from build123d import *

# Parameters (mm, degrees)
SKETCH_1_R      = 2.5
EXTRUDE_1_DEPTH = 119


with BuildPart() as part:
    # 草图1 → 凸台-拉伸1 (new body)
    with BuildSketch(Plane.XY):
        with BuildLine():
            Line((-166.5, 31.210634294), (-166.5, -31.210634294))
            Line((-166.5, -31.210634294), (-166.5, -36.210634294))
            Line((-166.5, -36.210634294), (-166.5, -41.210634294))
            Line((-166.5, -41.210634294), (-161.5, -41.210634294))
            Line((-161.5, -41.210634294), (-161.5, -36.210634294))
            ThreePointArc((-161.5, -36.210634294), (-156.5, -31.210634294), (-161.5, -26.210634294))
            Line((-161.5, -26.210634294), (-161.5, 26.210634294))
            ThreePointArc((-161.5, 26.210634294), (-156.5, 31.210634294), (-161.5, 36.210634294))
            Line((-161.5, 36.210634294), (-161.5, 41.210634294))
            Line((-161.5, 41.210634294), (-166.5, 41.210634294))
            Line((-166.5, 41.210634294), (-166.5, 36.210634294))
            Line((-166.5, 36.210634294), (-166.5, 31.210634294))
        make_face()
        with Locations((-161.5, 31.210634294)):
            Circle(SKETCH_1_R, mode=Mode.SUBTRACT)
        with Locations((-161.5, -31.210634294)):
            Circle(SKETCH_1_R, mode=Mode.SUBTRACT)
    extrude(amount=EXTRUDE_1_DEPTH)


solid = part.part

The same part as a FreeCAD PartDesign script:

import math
import FreeCAD as App
import Part
import Sketcher

doc = App.newDocument("Part")
body = doc.addObject("PartDesign::Body", "Body")

# Sketch on XY plane
sketch1 = doc.addObject("Sketcher::SketchObject", "Sketch")
body.addObject(sketch1)
sketch1.AttachmentSupport = (doc.XY_Plane, [""])
sketch1.MapMode = "FlatFace"
sketch1.addGeometry([
    Part.LineSegment(App.Vector(-166.5, -41.2, 0), App.Vector(-161.5, -41.2, 0)),  # 0
    Part.LineSegment(App.Vector(-161.5, -41.2, 0), App.Vector(-161.5, -36.2, 0)),  # 1
    Part.ArcOfCircle(Part.Circle(App.Vector(-161.5, -31.2, 0), App.Vector(0, 0, 1), 5), math.radians(-90), math.radians(90)),  # 2
    Part.LineSegment(App.Vector(-161.5, -26.2, 0), App.Vector(-161.5, 26.2, 0)),  # 3
    Part.ArcOfCircle(Part.Circle(App.Vector(-161.5, 31.2, 0), App.Vector(0, 0, 1), 5), math.radians(-90), math.radians(90)),  # 4
    Part.LineSegment(App.Vector(-161.5, 36.2, 0), App.Vector(-161.5, 41.2, 0)),  # 5
    Part.LineSegment(App.Vector(-161.5, 41.2, 0), App.Vector(-166.5, 41.2, 0)),  # 6
    Part.LineSegment(App.Vector(-166.5, 41.2, 0), App.Vector(-166.5, -41.2, 0)),  # 7
    Part.Circle(App.Vector(-161.5, -31.2, 0), App.Vector(0, 0, 1), 2.5),  # 8
    Part.Circle(App.Vector(-161.5, 31.2, 0), App.Vector(0, 0, 1), 2.5),  # 9
], False)
sketch1.addConstraint([
    Sketcher.Constraint("Coincident", 0, 2, 1, 1),
    Sketcher.Constraint("Coincident", 1, 2, 2, 1),
    Sketcher.Constraint("Coincident", 2, 2, 3, 1),
    Sketcher.Constraint("Coincident", 3, 2, 4, 1),
    Sketcher.Constraint("Coincident", 4, 2, 5, 1),
    Sketcher.Constraint("Coincident", 5, 2, 6, 1),
    Sketcher.Constraint("Coincident", 6, 2, 7, 1),
    Sketcher.Constraint("Coincident", 7, 2, 0, 1),
    Sketcher.Constraint("Horizontal", 0),
    Sketcher.Constraint("Vertical", 1),
    Sketcher.Constraint("Vertical", 3),
    Sketcher.Constraint("Vertical", 5),
    Sketcher.Constraint("Horizontal", 6),
    Sketcher.Constraint("Vertical", 7),
    Sketcher.Constraint("Coincident", 8, 3, 2, 3),
    Sketcher.Constraint("Coincident", 9, 3, 4, 3),
    Sketcher.Constraint("Equal", 2, 4),
    Sketcher.Constraint("Equal", 8, 9),
    Sketcher.Constraint("Symmetric", 2, 3, 4, 3, -1),
    Sketcher.Constraint("Symmetric", 0, 2, 5, 2, -1),
    Sketcher.Constraint("Vertical", 9, 3, 0, 2),
    Sketcher.Constraint("Vertical", 1, 2, 2, 2),
    Sketcher.Constraint("Equal", 6, 1),
    Sketcher.Constraint("Diameter", 8, 5.0),
    Sketcher.Constraint("Radius", 2, 5.0),
    Sketcher.Constraint("DistanceX", 0, 1, 0, 2, 5.0),
    Sketcher.Constraint("DistanceX", 2, 3, -1, 1, 161.5),
    Sketcher.Constraint("DistanceY", 3, 1, 3, 2, 52.421269),
])
pad1 = doc.addObject("PartDesign::Pad", "Pad")
body.addObject(pad1)
pad1.Profile = sketch1
pad1.Length = 119

doc.recompute()
